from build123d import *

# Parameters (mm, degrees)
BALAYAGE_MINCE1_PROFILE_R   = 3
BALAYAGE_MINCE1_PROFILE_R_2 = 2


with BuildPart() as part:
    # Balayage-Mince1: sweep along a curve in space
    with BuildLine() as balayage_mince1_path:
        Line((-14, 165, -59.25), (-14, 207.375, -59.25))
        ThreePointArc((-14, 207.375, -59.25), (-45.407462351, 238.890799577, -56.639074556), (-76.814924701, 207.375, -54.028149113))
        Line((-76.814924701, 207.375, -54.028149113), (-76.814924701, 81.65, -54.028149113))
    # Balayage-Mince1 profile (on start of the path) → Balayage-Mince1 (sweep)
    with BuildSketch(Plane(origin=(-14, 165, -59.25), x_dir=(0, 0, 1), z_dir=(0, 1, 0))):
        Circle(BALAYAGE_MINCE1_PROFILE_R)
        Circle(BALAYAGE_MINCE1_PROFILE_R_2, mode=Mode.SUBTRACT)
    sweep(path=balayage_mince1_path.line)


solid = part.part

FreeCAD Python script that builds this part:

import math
import FreeCAD as App
import Part
import Sketcher
from FreeCAD import Vector

doc = App.newDocument("Part")
params = doc.addObject("Spreadsheet::Sheet", "Params")
for row, (alias, value) in enumerate([
    ("sketch1_diameter", "6 mm"),
    ("sketch1_diameter2", "4 mm"),
], start=1):
    params.set(f"A{row}", alias)
    params.set(f"B{row}", "=" + value)
    params.setAlias(f"B{row}", alias)

body = doc.addObject("PartDesign::Body", "Body")

# Sketch on XZ plane
sketch1 = doc.addObject("Sketcher::SketchObject", "Sketch")
body.addObject(sketch1)
sketch1.AttachmentSupport = (doc.XZ_Plane, [""])
sketch1.MapMode = "FlatFace"
sketch1.AttachmentOffset = App.Placement(Vector(0, 0, -165), App.Rotation())
sketch1.addGeometry([
    Part.Circle(Vector(-14, -59.2, 0), Vector(0, 0, 1), 3),
    Part.Circle(Vector(-14, -59.2, 0), Vector(0, 0, 1), 2),
], False)
sketch1.addConstraint([
    Sketcher.Constraint("Coincident", 1, 3, 0, 3),
    Sketcher.Constraint("Diameter", 0, 6.0),
    Sketcher.Constraint("Diameter", 1, 4.0),
    Sketcher.Constraint("DistanceX", 0, 3, -1, 1, 14.0),
    Sketcher.Constraint("DistanceY", 0, 3, -1, 1, 59.25),
])
sketch1.setExpression("Constraints[1]", "Params.sketch1_diameter")
sketch1.setExpression("Constraints[2]", "Params.sketch1_diameter2")

# Sketch on an angled plane
sketch2 = doc.addObject("Sketcher::SketchObject", "Sketch001")
body.addObject(sketch2)
sketch2.Placement = App.Placement(Vector(-4.987777, 0, -59.999193), App.Rotation(Vector(0.996562447, 0, -0.082844969), Vector(0, 1, 0), Vector(0.082844969, 0, 0.996562447), "ZXY"))
sketch2.addGeometry([
    Part.LineSegment(Vector(-9, 165, 0), Vector(-9, 207, 0)),
    Part.ArcOfCircle(Part.Circle(Vector(-41, 207, 0), Vector(0, 0, 1), 32), math.radians(0), math.radians(180)),
    Part.LineSegment(Vector(-72, 207, 0), Vector(-72, 82, 0)),
], False)
sketch2.addConstraint([
    Sketcher.Constraint("Tangent", 0, 2, 1, 1),
    Sketcher.Constraint("Tangent", 1, 2, 2, 1),
    Sketcher.Constraint("Vertical", 0),
    Sketcher.Constraint("Vertical", 2),
    Sketcher.Constraint("DistanceY", -1, 1, 0, 1, 165.0),
    Sketcher.Constraint("Radius", 1, 31.5158),
    Sketcher.Constraint("DistanceY", 0, 1, 0, 2, 42.375),
    Sketcher.Constraint("DistanceY", 2, 2, 2, 1, 125.725),
    Sketcher.Constraint("DistanceX", 1, 3, -1, 1, 40.559109),
])
doc.recompute()

additivepipe = doc.addObject("PartDesign::AdditivePipe", "AdditivePipe")
body.addObject(additivepipe)
additivepipe.Profile = sketch1
additivepipe.Spine = (sketch2, ["Edge1", "Edge2", "Edge3"])

doc.recompute()
